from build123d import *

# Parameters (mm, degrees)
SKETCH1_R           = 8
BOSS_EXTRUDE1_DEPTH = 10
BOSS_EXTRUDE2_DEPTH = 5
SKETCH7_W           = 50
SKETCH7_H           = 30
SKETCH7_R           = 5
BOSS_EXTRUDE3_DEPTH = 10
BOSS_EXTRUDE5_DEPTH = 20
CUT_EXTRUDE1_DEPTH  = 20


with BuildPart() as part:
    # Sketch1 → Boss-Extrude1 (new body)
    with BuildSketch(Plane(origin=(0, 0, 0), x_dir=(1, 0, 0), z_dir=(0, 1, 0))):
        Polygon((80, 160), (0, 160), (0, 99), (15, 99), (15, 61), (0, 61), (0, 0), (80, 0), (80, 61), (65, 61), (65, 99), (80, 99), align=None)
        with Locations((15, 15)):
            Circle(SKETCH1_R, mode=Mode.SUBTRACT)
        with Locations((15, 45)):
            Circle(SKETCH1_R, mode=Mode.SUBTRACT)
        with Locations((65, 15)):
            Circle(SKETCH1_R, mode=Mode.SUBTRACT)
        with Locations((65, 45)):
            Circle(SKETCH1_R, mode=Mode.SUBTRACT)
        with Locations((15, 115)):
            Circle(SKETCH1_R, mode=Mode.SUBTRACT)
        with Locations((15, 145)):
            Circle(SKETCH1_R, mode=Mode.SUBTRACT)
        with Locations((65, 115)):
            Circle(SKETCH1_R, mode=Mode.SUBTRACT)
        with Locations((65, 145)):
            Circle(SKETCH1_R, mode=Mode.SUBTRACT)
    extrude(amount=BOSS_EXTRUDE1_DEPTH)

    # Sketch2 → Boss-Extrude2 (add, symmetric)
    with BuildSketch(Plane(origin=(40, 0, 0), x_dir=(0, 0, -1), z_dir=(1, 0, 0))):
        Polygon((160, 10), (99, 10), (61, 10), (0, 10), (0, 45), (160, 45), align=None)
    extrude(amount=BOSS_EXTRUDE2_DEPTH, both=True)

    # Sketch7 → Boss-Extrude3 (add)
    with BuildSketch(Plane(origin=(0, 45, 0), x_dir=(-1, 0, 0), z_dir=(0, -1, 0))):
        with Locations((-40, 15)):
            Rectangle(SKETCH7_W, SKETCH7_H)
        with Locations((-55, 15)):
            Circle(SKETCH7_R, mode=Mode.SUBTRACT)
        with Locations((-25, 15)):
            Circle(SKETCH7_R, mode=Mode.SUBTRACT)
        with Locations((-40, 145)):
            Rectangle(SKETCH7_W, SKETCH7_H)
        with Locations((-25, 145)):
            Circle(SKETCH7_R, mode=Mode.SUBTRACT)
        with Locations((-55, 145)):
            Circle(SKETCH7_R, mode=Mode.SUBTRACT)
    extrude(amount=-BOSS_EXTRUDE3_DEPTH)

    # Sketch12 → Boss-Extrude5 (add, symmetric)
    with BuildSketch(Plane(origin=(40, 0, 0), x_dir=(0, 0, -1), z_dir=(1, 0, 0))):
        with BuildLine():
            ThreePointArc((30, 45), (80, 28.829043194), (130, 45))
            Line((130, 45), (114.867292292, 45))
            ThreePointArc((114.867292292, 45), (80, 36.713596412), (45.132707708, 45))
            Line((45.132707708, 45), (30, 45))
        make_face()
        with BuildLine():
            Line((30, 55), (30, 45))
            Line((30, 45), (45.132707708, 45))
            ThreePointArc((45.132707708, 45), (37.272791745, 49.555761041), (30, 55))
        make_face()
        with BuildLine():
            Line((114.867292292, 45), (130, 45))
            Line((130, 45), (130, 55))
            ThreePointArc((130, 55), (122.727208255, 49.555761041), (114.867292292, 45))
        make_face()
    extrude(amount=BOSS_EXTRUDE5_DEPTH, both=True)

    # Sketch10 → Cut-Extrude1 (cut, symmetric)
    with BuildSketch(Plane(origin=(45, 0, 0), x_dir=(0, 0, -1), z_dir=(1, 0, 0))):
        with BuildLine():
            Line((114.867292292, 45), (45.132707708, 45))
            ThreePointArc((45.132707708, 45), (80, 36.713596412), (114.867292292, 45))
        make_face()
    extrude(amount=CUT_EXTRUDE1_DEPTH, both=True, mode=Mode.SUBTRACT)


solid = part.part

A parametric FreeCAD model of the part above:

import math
import FreeCAD as App
import Part
import Sketcher

V = App.Vector


def add_polygon(sketch, points):
    """Adds a closed chain of lines whose ends are joined by coincident constraints."""
    first, n = sketch.GeometryCount, len(points)
    for a, b in zip(points, points[1:] + points[:1]):
        sketch.addGeometry(Part.LineSegment(App.Vector(*a, 0), App.Vector(*b, 0)), False)
    for i in range(n):
        sketch.addConstraint(Sketcher.Constraint("Coincident", first + i, 2, first + (i + 1) % n, 1))

doc = App.newDocument("Part")
body = doc.addObject("PartDesign::Body", "Body")

# Sketch on XZ plane
sketch1 = body.newObject("Sketcher::SketchObject", "Sketch")
sketch1.AttachmentSupport = (doc.getObject("XZ_Plane"), [""])
sketch1.MapMode = "FlatFace"
add_polygon(sketch1, [(80, -160), (0, -160), (0, -99), (15, -99), (15, -61), (0, -61), (0, 0), (80, 0), (80, -61), (65, -61), (65, -99), (80, -99)])  # lines 0-11
sketch1.addGeometry(Part.Circle(V(15, -15, 0), V(0, 0, 1), 8), False)  # 12
sketch1.addGeometry(Part.Circle(V(15, -45, 0), V(0, 0, 1), 8), False)  # 13
sketch1.addGeometry(Part.Circle(V(65, -15, 0), V(0, 0, 1), 8), False)  # 14
sketch1.addGeometry(Part.Circle(V(65, -45, 0), V(0, 0, 1), 8), False)  # 15
sketch1.addGeometry(Part.Circle(V(15, -115, 0), V(0, 0, 1), 8), False)  # 16
sketch1.addGeometry(Part.Circle(V(15, -145, 0), V(0, 0, 1), 8), False)  # 17
sketch1.addGeometry(Part.Circle(V(65, -115, 0), V(0, 0, 1), 8), False)  # 18
sketch1.addGeometry(Part.Circle(V(65, -145, 0), V(0, 0, 1), 8), False)  # 19
sketch1.addConstraint([
    Sketcher.Constraint("Horizontal", 0),
    Sketcher.Constraint("Vertical", 1),
    Sketcher.Constraint("Horizontal", 2),
    Sketcher.Constraint("Vertical", 3),
    Sketcher.Constraint("Horizontal", 4),
    Sketcher.Constraint("Vertical", 5),
    Sketcher.Constraint("Horizontal", 6),
    Sketcher.Constraint("Vertical", 7),
    Sketcher.Constraint("Horizontal", 8),
    Sketcher.Constraint("Vertical", 9),
    Sketcher.Constraint("Horizontal", 10),
    Sketcher.Constraint("Vertical", 11),
    Sketcher.Constraint("Coincident", 5, 2, -1, 1),
    Sketcher.Constraint("Equal", 12, 13),
    Sketcher.Constraint("Equal", 13, 14),
    Sketcher.Constraint("Equal", 14, 15),
    Sketcher.Constraint("Equal", 15, 16),
    Sketcher.Constraint("Equal", 16, 17),
    Sketcher.Constraint("Equal", 17, 18),
    Sketcher.Constraint("Equal", 18, 19),
    Sketcher.Constraint("PointOnObject", 0, 2, -2),
    Sketcher.Constraint("Horizontal", 12, 3, 14, 3),
    Sketcher.Constraint("Horizontal", 13, 3, 15, 3),
    Sketcher.Constraint("Horizontal", 16, 3, 18, 3),
    Sketcher.Constraint("Horizontal", 17, 3, 19, 3),
    Sketcher.Constraint("Horizontal", 4, 2, 7, 2),
    Sketcher.Constraint("Horizontal", 2, 2, 9, 2),
    Sketcher.Constraint("Vertical", 12, 3, 13, 3),
    Sketcher.Constraint("Vertical", 14, 3, 15, 3),
    Sketcher.Constraint("Vertical", 13, 3, 16, 3),
    Sketcher.Constraint("Vertical", 16, 3, 17, 3),
    Sketcher.Constraint("Vertical", 15, 3, 18, 3),
    Sketcher.Constraint("Vertical", 18, 3, 19, 3),
    Sketcher.Constraint("Vertical", 17, 3, 2, 2),
    Sketcher.Constraint("Vertical", 19, 3, 8, 2),
    Sketcher.Constraint("Vertical", 7, 2, 10, 2),
    Sketcher.Constraint("Equal", 4, 8),
    Sketcher.Constraint("Equal", 1, 5),
    Sketcher.Constraint("Diameter", 12, 16.0),
    Sketcher.Constraint("DistanceX", 0, 2, 0, 1, 80.0),
    Sketcher.Constraint("DistanceX", 2, 1, 2, 2, 15.0),
    Sketcher.Constraint("DistanceY", 1, 1, 1, 2, 61.0),
    Sketcher.Constraint("DistanceY", 3, 1, 3, 2, 38.0),
    Sketcher.Constraint("DistanceY", 12, 3, -1, 1, 15.0),
    Sketcher.Constraint("DistanceY", 13, 3, -1, 1, 45.0),
    Sketcher.Constraint("DistanceY", 16, 3, -1, 1, 115.0),
    Sketcher.Constraint("DistanceY", 17, 3, -1, 1, 145.0),
])
pad1 = body.newObject("PartDesign::Pad", "Pad")
pad1.Profile = sketch1
pad1.Length = 10
pad1.Reversed = True

# Sketch on YZ plane
sketch2 = body.newObject("Sketcher::SketchObject", "Sketch001")
sketch2.AttachmentSupport = (doc.getObject("YZ_Plane"), [""])
sketch2.MapMode = "FlatFace"
sketch2.AttachmentOffset = App.Placement(V(0, 0, 40), App.Rotation())
add_polygon(sketch2, [(10, 0), (10, -160), (45, -160), (45, 0)])  # lines 0-3
sketch2.addConstraint([
    Sketcher.Constraint("Vertical", 0),
    Sketcher.Constraint("Horizontal", 1),
    Sketcher.Constraint("Vertical", 2),
    Sketcher.Constraint("Horizontal", 3),
    Sketcher.Constraint("PointOnObject", 2, 2, -1),
    Sketcher.Constraint("DistanceX", 1, 1, 1, 2, 35.0),
    Sketcher.Constraint("DistanceY", 0, 2, 0, 1, 160.0),
    Sketcher.Constraint("DistanceX", -1, 1, 0, 2, 10.0),
])
pad2 = body.newObject("PartDesign::Pad", "Pad001")
pad2.Profile = sketch2
pad2.Length = 10
pad2.Midplane = True

# Sketch on XZ plane
sketch3 = body.newObject("Sketcher::SketchObject", "Sketch002")
sketch3.AttachmentSupport = (doc.getObject("XZ_Plane"), [""])
sketch3.MapMode = "FlatFace"
sketch3.AttachmentOffset = App.Placement(V(0, 0, -45), App.Rotation())
add_polygon(sketch3, [(65, -30), (65, 0), (15, 0), (15, -30)])  # lines 0-3
sketch3.addGeometry(Part.Circle(V(55, -15, 0), V(0, 0, 1), 5), False)  # 4
sketch3.addGeometry(Part.Circle(V(25, -15, 0), V(0, 0, 1), 5), False)  # 5
add_polygon(sketch3, [(65, -160), (65, -130), (15, -130), (15, -160)])  # lines 6-9
sketch3.addGeometry(Part.Circle(V(55, -145, 0), V(0, 0, 1), 5), False)  # 10
sketch3.addGeometry(Part.Circle(V(25, -145, 0), V(0, 0, 1), 5), False)  # 11
sketch3.addConstraint([
    Sketcher.Constraint("Vertical", 0),
    Sketcher.Constraint("Horizontal", 1),
    Sketcher.Constraint("Vertical", 2),
    Sketcher.Constraint("Horizontal", 3),
    Sketcher.Constraint("Vertical", 6),
    Sketcher.Constraint("Horizontal", 7),
    Sketcher.Constraint("Vertical", 8),
    Sketcher.Constraint("Horizontal", 9),
    Sketcher.Constraint("Equal", 4, 5),
    Sketcher.Constraint("Equal", 5, 10),
    Sketcher.Constraint("Equal", 10, 11),
    Sketcher.Constraint("PointOnObject", 0, 2, -1),
    Sketcher.Constraint("Horizontal", 4, 3, 5, 3),
    Sketcher.Constraint("Horizontal", 10, 3, 11, 3),
    Sketcher.Constraint("Vertical", 4, 3, 10, 3),
    Sketcher.Constraint("Vertical", 5, 3, 11, 3),
    Sketcher.Constraint("Vertical", 3, 2, 6, 2),
    Sketcher.Constraint("Vertical", 2, 2, 7, 2),
    Sketcher.Constraint("Equal", 2, 6),
    Sketcher.Constraint("Diameter", 4, 10.0),
    Sketcher.Constraint("DistanceX", 1, 2, 1, 1, 50.0),
    Sketcher.Constraint("DistanceY", 0, 1, 0, 2, 30.0),
    Sketcher.Constraint("DistanceX", -1, 1, 4, 3, 55.0),
    Sketcher.Constraint("DistanceY", 4, 3, -1, 1, 15.0),
    Sketcher.Constraint("DistanceX", -1, 1, 5, 3, 25.0),
    Sketcher.Constraint("DistanceY", 10, 3, -1, 1, 145.0),
    Sketcher.Constraint("DistanceX", -1, 1, 0, 2, 65.0),
    Sketcher.Constraint("DistanceY", 6, 2, -1, 1, 130.0),
])
pad3 = body.newObject("PartDesign::Pad", "Pad002")
pad3.Profile = sketch3
pad3.Length = 10
pad3.Reversed = True

# Sketch on YZ plane
sketch4 = body.newObject("Sketcher::SketchObject", "Sketch003")
sketch4.AttachmentSupport = (doc.getObject("YZ_Plane"), [""])
sketch4.MapMode = "FlatFace"
sketch4.AttachmentOffset = App.Placement(V(0, 0, 40), App.Rotation())
sketch4.addGeometry([
    Part.ArcOfCircle(Part.Circle(V(114, -80, 0), V(0, 0, 1), 85), math.radians(144), math.radians(216)),  # 0
    Part.LineSegment(V(45, -130, 0), V(55, -130, 0)),  # 1
    Part.ArcOfCircle(Part.Circle(V(114, -80, 0), V(0, 0, 1), 77), math.radians(-153.26), math.radians(-139.82)),  # 2
    Part.ArcOfCircle(Part.Circle(V(114, -80, 0), V(0, 0, 1), 78), math.radians(153), math.radians(207)),  # 3
    Part.ArcOfCircle(Part.Circle(V(114, -80, 0), V(0, 0, 1), 77), math.radians(139.82), math.radians(153.26)),  # 4
    Part.LineSegment(V(55, -30, 0), V(45, -30, 0)),  # 5
], False)
sketch4.addConstraint([
    Sketcher.Constraint("Coincident", 0, 2, 1, 1),
    Sketcher.Constraint("Coincident", 1, 2, 2, 2),
    Sketcher.Constraint("Tangent", 2, 1, 3, 2),
    Sketcher.Constraint("Tangent", 3, 1, 4, 2),
    Sketcher.Constraint("Coincident", 4, 1, 5, 1),
    Sketcher.Constraint("Coincident", 5, 2, 0, 1),
    Sketcher.Constraint("Horizontal", 1),
    Sketcher.Constraint("Horizontal", 5),
    Sketcher.Constraint("Coincident", 2, 3, 0, 3),
    Sketcher.Constraint("Coincident", 4, 3, 0, 3),
    Sketcher.Constraint("Vertical", 0, 2, 2, 1),
    Sketcher.Constraint("Vertical", 2, 1, 3, 1),
    Sketcher.Constraint("Vertical", 1, 2, 4, 1),
    Sketcher.Constraint("Radius", 2, 77.5),
    Sketcher.Constraint("DistanceX", 1, 1, 1, 2, 10.0),
    Sketcher.Constraint("DistanceY", 0, 3, -1, 1, 80.0),
    Sketcher.Constraint("DistanceX", -1, 1, 0, 2, 45.0),
    Sketcher.Constraint("DistanceY", 0, 2, -1, 1, 130.0),
])
pad4 = body.newObject("PartDesign::Pad", "Pad003")
pad4.Profile = sketch4
pad4.Length = 40
pad4.Midplane = True

# Sketch on YZ plane
sketch5 = body.newObject("Sketcher::SketchObject", "Sketch004")
sketch5.AttachmentSupport = (doc.getObject("YZ_Plane"), [""])
sketch5.MapMode = "FlatFace"
sketch5.AttachmentOffset = App.Placement(V(0, 0, 45), App.Rotation())
sketch5.addGeometry([
    Part.LineSegment(V(45, -115, 0), V(45, -45, 0)),
    Part.ArcOfCircle(Part.Circle(V(114, -80, 0), V(0, 0, 1), 78), math.radians(153), math.radians(207)),
], False)
sketch5.addConstraint([
    Sketcher.Constraint("Coincident", 0, 1, 1, 2),
    Sketcher.Constraint("Coincident", 1, 1, 0, 2),
    Sketcher.Constraint("Vertical", 0),
    Sketcher.Constraint("Radius", 1, 77.5),
    Sketcher.Constraint("DistanceY", 1, 3, -1, 1, 80.0),
    Sketcher.Constraint("DistanceX", -1, 1, 0, 1, 45.0),
    Sketcher.Constraint("DistanceY", 0, 1, 0, 2, 69.734585),
])
pocket1 = body.newObject("PartDesign::Pocket", "Pocket")
pocket1.Profile = sketch5
pocket1.Length = 40
pocket1.Midplane = True

doc.recompute()
